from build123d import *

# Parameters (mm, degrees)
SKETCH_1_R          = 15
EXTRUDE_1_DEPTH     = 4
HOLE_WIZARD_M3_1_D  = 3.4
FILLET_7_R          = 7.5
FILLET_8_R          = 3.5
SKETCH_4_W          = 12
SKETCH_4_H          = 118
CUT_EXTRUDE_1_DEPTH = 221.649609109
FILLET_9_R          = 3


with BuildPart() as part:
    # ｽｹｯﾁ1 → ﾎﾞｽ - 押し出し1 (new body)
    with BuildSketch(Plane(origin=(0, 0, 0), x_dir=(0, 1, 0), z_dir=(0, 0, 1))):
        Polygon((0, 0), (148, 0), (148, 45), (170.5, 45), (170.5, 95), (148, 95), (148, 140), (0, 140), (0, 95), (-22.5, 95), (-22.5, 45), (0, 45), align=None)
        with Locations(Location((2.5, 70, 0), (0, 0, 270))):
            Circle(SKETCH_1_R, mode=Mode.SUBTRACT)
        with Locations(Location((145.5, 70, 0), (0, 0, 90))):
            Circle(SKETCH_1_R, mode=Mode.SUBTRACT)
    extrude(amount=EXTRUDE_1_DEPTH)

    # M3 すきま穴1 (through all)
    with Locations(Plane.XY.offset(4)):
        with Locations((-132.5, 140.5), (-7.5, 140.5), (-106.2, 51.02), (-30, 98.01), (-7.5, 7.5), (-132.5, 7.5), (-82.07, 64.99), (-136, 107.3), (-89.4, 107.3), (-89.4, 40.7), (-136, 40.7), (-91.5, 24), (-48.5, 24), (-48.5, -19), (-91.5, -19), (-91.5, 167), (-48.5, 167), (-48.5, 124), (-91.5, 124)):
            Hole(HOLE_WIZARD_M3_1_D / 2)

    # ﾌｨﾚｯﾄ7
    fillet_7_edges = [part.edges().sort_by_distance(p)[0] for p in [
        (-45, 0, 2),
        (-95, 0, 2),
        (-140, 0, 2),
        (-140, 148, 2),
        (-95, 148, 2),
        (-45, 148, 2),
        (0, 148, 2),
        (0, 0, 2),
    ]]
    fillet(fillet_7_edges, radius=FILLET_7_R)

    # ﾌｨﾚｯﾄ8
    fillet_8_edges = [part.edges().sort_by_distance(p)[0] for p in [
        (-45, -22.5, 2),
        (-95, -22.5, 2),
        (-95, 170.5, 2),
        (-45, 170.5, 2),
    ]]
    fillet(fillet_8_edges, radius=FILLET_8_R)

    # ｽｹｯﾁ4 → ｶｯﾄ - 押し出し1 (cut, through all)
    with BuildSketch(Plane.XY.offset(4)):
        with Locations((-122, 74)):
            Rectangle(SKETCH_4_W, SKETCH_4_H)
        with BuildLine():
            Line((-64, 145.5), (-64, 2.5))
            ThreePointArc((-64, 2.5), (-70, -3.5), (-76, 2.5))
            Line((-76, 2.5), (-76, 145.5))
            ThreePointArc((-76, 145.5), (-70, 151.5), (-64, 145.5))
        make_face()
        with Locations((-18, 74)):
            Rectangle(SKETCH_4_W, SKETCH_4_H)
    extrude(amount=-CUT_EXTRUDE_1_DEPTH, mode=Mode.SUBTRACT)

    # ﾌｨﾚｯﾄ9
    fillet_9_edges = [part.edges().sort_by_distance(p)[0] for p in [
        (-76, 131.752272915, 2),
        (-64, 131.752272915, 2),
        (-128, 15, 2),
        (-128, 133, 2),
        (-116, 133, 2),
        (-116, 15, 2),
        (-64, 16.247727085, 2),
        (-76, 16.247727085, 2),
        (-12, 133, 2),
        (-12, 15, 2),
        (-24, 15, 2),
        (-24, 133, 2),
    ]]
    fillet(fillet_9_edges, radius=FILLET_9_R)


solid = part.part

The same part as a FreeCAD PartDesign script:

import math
import FreeCAD as App
import Part
import Sketcher
Q = App.Units.Quantity


def edges_at(feature, points):
    """Names of the edges that pass closest to the given points."""
    edges = feature.Shape.Edges
    near = lambda p: min(range(len(edges)), key=lambda i: edges[i].distToShape(Part.Vertex(*p))[0])
    return sorted({f"Edge{near(p) + 1}" for p in points})


def add_polygon(sketch, points):
    """Adds a closed chain of lines whose ends are joined by coincident constraints."""
    first, n = sketch.GeometryCount, len(points)
    for a, b in zip(points, points[1:] + points[:1]):
        sketch.addGeometry(Part.LineSegment(App.Vector(*a, 0), App.Vector(*b, 0)), False)
    for i in range(n):
        sketch.addConstraint(Sketcher.Constraint("Coincident", first + i, 2, first + (i + 1) % n, 1))

doc = App.newDocument("Part")
body = doc.addObject("PartDesign::Body", "Body")

sketch1 = body.newObject("Sketcher::SketchObject", "Sketch")
sketch1.AttachmentSupport = (doc.getObject("XY_Plane"), [""])
sketch1.MapMode = "FlatFace"
add_polygon(sketch1, [(0, 0), (0, 148), (-45, 148), (-45, 170), (-95, 170), (-95, 148), (-140, 148), (-140, 0), (-95, 0), (-95, -22), (-45, -22), (-45, 0)])
sketch1.addGeometry(Part.Circle(App.Vector(-70, 2, 0), App.Vector(0, 0, 1), 15), False)
sketch1.addGeometry(Part.Circle(App.Vector(-70, 146, 0), App.Vector(0, 0, 1), 15), False)
sketch1.addConstraint(Sketcher.Constraint("Vertical", 0))
sketch1.addConstraint(Sketcher.Constraint("Horizontal", 1))
sketch1.addConstraint(Sketcher.Constraint("Vertical", 2))
sketch1.addConstraint(Sketcher.Constraint("Horizontal", 3))
sketch1.addConstraint(Sketcher.Constraint("Vertical", 4))
sketch1.addConstraint(Sketcher.Constraint("Horizontal", 5))
sketch1.addConstraint(Sketcher.Constraint("Vertical", 6))
sketch1.addConstraint(Sketcher.Constraint("Horizontal", 7))
sketch1.addConstraint(Sketcher.Constraint("Vertical", 8))
sketch1.addConstraint(Sketcher.Constraint("Horizontal", 9))
sketch1.addConstraint(Sketcher.Constraint("Vertical", 10))
sketch1.addConstraint(Sketcher.Constraint("Horizontal", 11))
sketch1.addConstraint(Sketcher.Constraint("Coincident", 11, 2, -1, 1))
sketch1.addConstraint(Sketcher.Constraint("Equal", 12, 13))
sketch1.addConstraint(Sketcher.Constraint("PointOnObject", 6, 2, -1))
sketch1.addConstraint(Sketcher.Constraint("Horizontal", 1, 2, 4, 2))
sketch1.addConstraint(Sketcher.Constraint("Vertical", 12, 3, 13, 3))
sketch1.addConstraint(Sketcher.Constraint("Vertical", 4, 2, 7, 2))
sketch1.addConstraint(Sketcher.Constraint("Vertical", 2, 2, 9, 2))
sketch1.addConstraint(Sketcher.Constraint("Equal", 1, 5))
sketch1.addConstraint(Sketcher.Constraint("Equal", 4, 8))
sketch1.addConstraint(Sketcher.Constraint("Diameter", 12, Q("30 mm")))
sketch1.addConstraint(Sketcher.Constraint("DistanceX", 1, 2, 1, 1, Q("45 mm")))
sketch1.addConstraint(Sketcher.Constraint("DistanceX", 3, 2, 3, 1, Q("50 mm")))
sketch1.addConstraint(Sketcher.Constraint("DistanceY", 0, 1, 0, 2, Q("148 mm")))
sketch1.addConstraint(Sketcher.Constraint("DistanceY", 2, 1, 2, 2, Q("22.5 mm")))
sketch1.addConstraint(Sketcher.Constraint("DistanceX", 12, 3, -1, 1, Q("70 mm")))
sketch1.addConstraint(Sketcher.Constraint("DistanceY", 12, 3, 13, 3, Q("143 mm")))
sketch1.addConstraint(Sketcher.Constraint("DistanceY", 13, 3, 2, 2, Q("25 mm")))
pad1 = body.newObject("PartDesign::Pad", "Pad")
pad1.Profile = sketch1
pad1.Length = 4

sketch2 = body.newObject("Sketcher::SketchObject", "Sketch001")
sketch2.AttachmentSupport = (doc.getObject("XY_Plane"), [""])
sketch2.MapMode = "FlatFace"
sketch2.AttachmentOffset = App.Placement(App.Vector(0, 0, 4), App.Rotation())
sketch2.addGeometry(Part.Circle(App.Vector(-132.5, 140.5, 0), App.Vector(0, 0, 1), 1.7), False)
sketch2.addGeometry(Part.Circle(App.Vector(-7.5, 140.5, 0), App.Vector(0, 0, 1), 1.7), False)
sketch2.addGeometry(Part.Circle(App.Vector(-106.2, 51, 0), App.Vector(0, 0, 1), 1.7), False)
sketch2.addGeometry(Part.Circle(App.Vector(-30, 98, 0), App.Vector(0, 0, 1), 1.7), False)
sketch2.addGeometry(Part.Circle(App.Vector(-7.5, 7.5, 0), App.Vector(0, 0, 1), 1.7), False)
sketch2.addGeometry(Part.Circle(App.Vector(-132.5, 7.5, 0), App.Vector(0, 0, 1), 1.7), False)
sketch2.addGeometry(Part.Circle(App.Vector(-82.1, 65, 0), App.Vector(0, 0, 1), 1.7), False)
sketch2.addGeometry(Part.Circle(App.Vector(-136, 107.3, 0), App.Vector(0, 0, 1), 1.7), False)
sketch2.addGeometry(Part.Circle(App.Vector(-89.4, 107.3, 0), App.Vector(0, 0, 1), 1.7), False)
sketch2.addGeometry(Part.Circle(App.Vector(-89.4, 40.7, 0), App.Vector(0, 0, 1), 1.7), False)
sketch2.addGeometry(Part.Circle(App.Vector(-136, 40.7, 0), App.Vector(0, 0, 1), 1.7), False)
sketch2.addGeometry(Part.Circle(App.Vector(-91.5, 24, 0), App.Vector(0, 0, 1), 1.7), False)
sketch2.addGeometry(Part.Circle(App.Vector(-48.5, 24, 0), App.Vector(0, 0, 1), 1.7), False)
sketch2.addGeometry(Part.Circle(App.Vector(-48.5, -19, 0), App.Vector(0, 0, 1), 1.7), False)
sketch2.addGeometry(Part.Circle(App.Vector(-91.5, -19, 0), App.Vector(0, 0, 1), 1.7), False)
sketch2.addGeometry(Part.Circle(App.Vector(-91.5, 167, 0), App.Vector(0, 0, 1), 1.7), False)
sketch2.addGeometry(Part.Circle(App.Vector(-48.5, 167, 0), App.Vector(0, 0, 1), 1.7), False)
sketch2.addGeometry(Part.Circle(App.Vector(-48.5, 124, 0), App.Vector(0, 0, 1), 1.7), False)
sketch2.addGeometry(Part.Circle(App.Vector(-91.5, 124, 0), App.Vector(0, 0, 1), 1.7), False)
sketch2.addConstraint(Sketcher.Constraint("Equal", 0, 1))
sketch2.addConstraint(Sketcher.Constraint("Equal", 1, 2))
sketch2.addConstraint(Sketcher.Constraint("Equal", 2, 3))
sketch2.addConstraint(Sketcher.Constraint("Equal", 3, 4))
sketch2.addConstraint(Sketcher.Constraint("Equal", 4, 5))
sketch2.addConstraint(Sketcher.Constraint("Equal", 5, 6))
sketch2.addConstraint(Sketcher.Constraint("Equal", 6, 7))
sketch2.addConstraint(Sketcher.Constraint("Equal", 7, 8))
sketch2.addConstraint(Sketcher.Constraint("Equal", 8, 9))
sketch2.addConstraint(Sketcher.Constraint("Equal", 9, 10))
sketch2.addConstraint(Sketcher.Constraint("Equal", 10, 11))
sketch2.addConstraint(Sketcher.Constraint("Equal", 11, 12))
sketch2.addConstraint(Sketcher.Constraint("Equal", 12, 13))
sketch2.addConstraint(Sketcher.Constraint("Equal", 13, 14))
sketch2.addConstraint(Sketcher.Constraint("Equal", 14, 15))
sketch2.addConstraint(Sketcher.Constraint("Equal", 15, 16))
sketch2.addConstraint(Sketcher.Constraint("Equal", 16, 17))
sketch2.addConstraint(Sketcher.Constraint("Equal", 17, 18))
sketch2.addConstraint(Sketcher.Constraint("Horizontal", 0, 3, 1, 3))
sketch2.addConstraint(Sketcher.Constraint("Horizontal", 4, 3, 5, 3))
sketch2.addConstraint(Sketcher.Constraint("Horizontal", 7, 3, 8, 3))
sketch2.addConstraint(Sketcher.Constraint("Horizontal", 9, 3, 10, 3))
sketch2.addConstraint(Sketcher.Constraint("Horizontal", 11, 3, 12, 3))
sketch2.addConstraint(Sketcher.Constraint("Horizontal", 13, 3, 14, 3))
sketch2.addConstraint(Sketcher.Constraint("Horizontal", 15, 3, 16, 3))
sketch2.addConstraint(Sketcher.Constraint("Horizontal", 17, 3, 18, 3))
sketch2.addConstraint(Sketcher.Constraint("Vertical", 1, 3, 4, 3))
sketch2.addConstraint(Sketcher.Constraint("Vertical", 0, 3, 5, 3))
sketch2.addConstraint(Sketcher.Constraint("Vertical", 8, 3, 9, 3))
sketch2.addConstraint(Sketcher.Constraint("Vertical", 7, 3, 10, 3))
sketch2.addConstraint(Sketcher.Constraint("Vertical", 12, 3, 13, 3))
sketch2.addConstraint(Sketcher.Constraint("Vertical", 11, 3, 14, 3))
sketch2.addConstraint(Sketcher.Constraint("Vertical", 14, 3, 15, 3))
sketch2.addConstraint(Sketcher.Constraint("Vertical", 13, 3, 16, 3))
sketch2.addConstraint(Sketcher.Constraint("Vertical", 16, 3, 17, 3))
sketch2.addConstraint(Sketcher.Constraint("Vertical", 15, 3, 18, 3))
sketch2.addConstraint(Sketcher.Constraint("Diameter", 0, Q("3.4 mm")))
sketch2.addConstraint(Sketcher.Constraint("DistanceX", 3, 3, -1, 1, Q("30 mm")))
sketch2.addConstraint(Sketcher.Constraint("DistanceX", 7, 3, -1, 1, Q("136 mm")))
sketch2.addConstraint(Sketcher.Constraint("DistanceY", -1, 1, 11, 3, Q("24 mm")))
sketch2.addConstraint(Sketcher.Constraint("DistanceY", 13, 3, -1, 1, Q("19 mm")))
sketch2.addConstraint(Sketcher.Constraint("DistanceY", -1, 1, 15, 3, Q("167 mm")))
sketch2.addConstraint(Sketcher.Constraint("DistanceY", -1, 1, 17, 3, Q("124 mm")))
sketch2.addConstraint(Sketcher.Constraint("DistanceX", 0, 3, 1, 3, Q("125 mm")))
sketch2.addConstraint(Sketcher.Constraint("DistanceY", 4, 3, 1, 3, Q("133 mm")))
sketch2.addConstraint(Sketcher.Constraint("DistanceX", 5, 3, 11, 3, Q("41 mm")))
sketch2.addConstraint(Sketcher.Constraint("DistanceX", 11, 3, 12, 3, Q("43 mm")))
sketch2.addConstraint(Sketcher.Constraint("DistanceX", 0, 3, -1, 1, Q("132.5 mm")))
sketch2.addConstraint(Sketcher.Constraint("DistanceY", -1, 1, 0, 3, Q("140.5 mm")))
sketch2.addConstraint(Sketcher.Constraint("DistanceX", 2, 3, -1, 1, Q("106.2 mm")))
sketch2.addConstraint(Sketcher.Constraint("DistanceY", -1, 1, 7, 3, Q("107.3 mm")))
sketch2.addConstraint(Sketcher.Constraint("DistanceX", 8, 3, -1, 1, Q("89.4 mm")))
sketch2.addConstraint(Sketcher.Constraint("DistanceY", -1, 1, 9, 3, Q("40.7 mm")))
sketch2.addConstraint(Sketcher.Constraint("DistanceY", -1, 1, 2, 3, Q("51.02 mm")))
sketch2.addConstraint(Sketcher.Constraint("DistanceY", -1, 1, 3, 3, Q("98.01 mm")))
sketch2.addConstraint(Sketcher.Constraint("DistanceX", 6, 3, -1, 1, Q("82.07 mm")))
sketch2.addConstraint(Sketcher.Constraint("DistanceY", -1, 1, 6, 3, Q("64.99 mm")))
doc.recompute()
hole = body.newObject("PartDesign::Hole", "Hole")
hole.Profile = sketch2
hole.ThreadType = "None"
hole.Diameter = 3.4
hole.DepthType = "ThroughAll"
doc.recompute()

fillet = body.newObject("PartDesign::Fillet", "Fillet")
fillet.Base = (hole, edges_at(hole, [
    (-45, 0, 2),
    (-95, 0, 2),
    (-140, 0, 2),
    (-140, 148, 2),
    (-95, 148, 2),
    (-45, 148, 2),
    (0, 148, 2),
    (0, 0, 2),
]))
fillet.Radius = 7.5
doc.recompute()

fillet2 = body.newObject("PartDesign::Fillet", "Fillet001")
fillet2.Base = (fillet, edges_at(fillet, [
    (-45, -22.5, 2),
    (-95, -22.5, 2),
    (-95, 170.5, 2),
    (-45, 170.5, 2),
]))
fillet2.Radius = 3.5

sketch3 = body.newObject("Sketcher::SketchObject", "Sketch002")
sketch3.AttachmentSupport = (doc.getObject("XY_Plane"), [""])
sketch3.MapMode = "FlatFace"
sketch3.AttachmentOffset = App.Placement(App.Vector(0, 0, 4), App.Rotation())
add_polygon(sketch3, [(-128, 133), (-128, 15), (-116, 15), (-116, 133)])
sketch3.addGeometry(Part.LineSegment(App.Vector(-64, 2, 0), App.Vector(-64, 146, 0)), False)
sketch3.addGeometry(Part.ArcOfCircle(Part.Circle(App.Vector(-70, 146, 0), App.Vector(0, 0, 1), 6), math.radians(0), math.radians(180)), False)
sketch3.addGeometry(Part.LineSegment(App.Vector(-76, 146, 0), App.Vector(-76, 2, 0)), False)
sketch3.addGeometry(Part.ArcOfCircle(Part.Circle(App.Vector(-70, 2, 0), App.Vector(0, 0, 1), 6), math.radians(180), math.radians(360)), False)
add_polygon(sketch3, [(-24, 133), (-24, 15), (-12, 15), (-12, 133)])
sketch3.addConstraint(Sketcher.Constraint("Tangent", 4, 2, 5, 1))
sketch3.addConstraint(Sketcher.Constraint("Tangent", 5, 2, 6, 1))
sketch3.addConstraint(Sketcher.Constraint("Tangent", 6, 2, 7, 1))
sketch3.addConstraint(Sketcher.Constraint("Tangent", 7, 2, 4, 1))
sketch3.addConstraint(Sketcher.Constraint("Vertical", 0))
sketch3.addConstraint(Sketcher.Constraint("Horizontal", 1))
sketch3.addConstraint(Sketcher.Constraint("Vertical", 2))
sketch3.addConstraint(Sketcher.Constraint("Horizontal", 3))
sketch3.addConstraint(Sketcher.Constraint("Vertical", 4))
sketch3.addConstraint(Sketcher.Constraint("Vertical", 6))
sketch3.addConstraint(Sketcher.Constraint("Vertical", 8))
sketch3.addConstraint(Sketcher.Constraint("Horizontal", 9))
sketch3.addConstraint(Sketcher.Constraint("Vertical", 10))
sketch3.addConstraint(Sketcher.Constraint("Horizontal", 11))
sketch3.addConstraint(Sketcher.Constraint("Horizontal", 1, 2, 8, 2))
sketch3.addConstraint(Sketcher.Constraint("Horizontal", 3, 2, 10, 2))
sketch3.addConstraint(Sketcher.Constraint("Equal", 3, 9))
sketch3.addConstraint(Sketcher.Constraint("Radius", 5, Q("6 mm")))
sketch3.addConstraint(Sketcher.Constraint("DistanceX", 1, 1, 1, 2, Q("12 mm")))
sketch3.addConstraint(Sketcher.Constraint("DistanceY", 0, 2, 0, 1, Q("118 mm")))
sketch3.addConstraint(Sketcher.Constraint("DistanceY", 4, 1, 4, 2, Q("143 mm")))
sketch3.addConstraint(Sketcher.Constraint("DistanceX", 5, 3, -1, 1, Q("70 mm")))
sketch3.addConstraint(Sketcher.Constraint("DistanceX", 0, 2, -1, 1, Q("128 mm")))
sketch3.addConstraint(Sketcher.Constraint("DistanceY", -1, 1, 0, 2, Q("15 mm")))
sketch3.addConstraint(Sketcher.Constraint("DistanceX", 8, 2, -1, 1, Q("24 mm")))
sketch3.addConstraint(Sketcher.Constraint("DistanceY", -1, 1, 5, 3, Q("145.5 mm")))
pocket1 = body.newObject("PartDesign::Pocket", "Pocket")
pocket1.Profile = sketch3
pocket1.Type = "ThroughAll"
doc.recompute()

fillet3 = body.newObject("PartDesign::Fillet", "Fillet002")
fillet3.Base = (pocket1, edges_at(pocket1, [
    (-76, 131.752, 2),
    (-64, 131.752, 2),
    (-128, 15, 2),
    (-128, 133, 2),
    (-116, 133, 2),
    (-116, 15, 2),
    (-64, 16.248, 2),
    (-76, 16.248, 2),
    (-12, 133, 2),
    (-12, 15, 2),
    (-24, 15, 2),
    (-24, 133, 2),
]))
fillet3.Radius = 3

doc.recompute()
